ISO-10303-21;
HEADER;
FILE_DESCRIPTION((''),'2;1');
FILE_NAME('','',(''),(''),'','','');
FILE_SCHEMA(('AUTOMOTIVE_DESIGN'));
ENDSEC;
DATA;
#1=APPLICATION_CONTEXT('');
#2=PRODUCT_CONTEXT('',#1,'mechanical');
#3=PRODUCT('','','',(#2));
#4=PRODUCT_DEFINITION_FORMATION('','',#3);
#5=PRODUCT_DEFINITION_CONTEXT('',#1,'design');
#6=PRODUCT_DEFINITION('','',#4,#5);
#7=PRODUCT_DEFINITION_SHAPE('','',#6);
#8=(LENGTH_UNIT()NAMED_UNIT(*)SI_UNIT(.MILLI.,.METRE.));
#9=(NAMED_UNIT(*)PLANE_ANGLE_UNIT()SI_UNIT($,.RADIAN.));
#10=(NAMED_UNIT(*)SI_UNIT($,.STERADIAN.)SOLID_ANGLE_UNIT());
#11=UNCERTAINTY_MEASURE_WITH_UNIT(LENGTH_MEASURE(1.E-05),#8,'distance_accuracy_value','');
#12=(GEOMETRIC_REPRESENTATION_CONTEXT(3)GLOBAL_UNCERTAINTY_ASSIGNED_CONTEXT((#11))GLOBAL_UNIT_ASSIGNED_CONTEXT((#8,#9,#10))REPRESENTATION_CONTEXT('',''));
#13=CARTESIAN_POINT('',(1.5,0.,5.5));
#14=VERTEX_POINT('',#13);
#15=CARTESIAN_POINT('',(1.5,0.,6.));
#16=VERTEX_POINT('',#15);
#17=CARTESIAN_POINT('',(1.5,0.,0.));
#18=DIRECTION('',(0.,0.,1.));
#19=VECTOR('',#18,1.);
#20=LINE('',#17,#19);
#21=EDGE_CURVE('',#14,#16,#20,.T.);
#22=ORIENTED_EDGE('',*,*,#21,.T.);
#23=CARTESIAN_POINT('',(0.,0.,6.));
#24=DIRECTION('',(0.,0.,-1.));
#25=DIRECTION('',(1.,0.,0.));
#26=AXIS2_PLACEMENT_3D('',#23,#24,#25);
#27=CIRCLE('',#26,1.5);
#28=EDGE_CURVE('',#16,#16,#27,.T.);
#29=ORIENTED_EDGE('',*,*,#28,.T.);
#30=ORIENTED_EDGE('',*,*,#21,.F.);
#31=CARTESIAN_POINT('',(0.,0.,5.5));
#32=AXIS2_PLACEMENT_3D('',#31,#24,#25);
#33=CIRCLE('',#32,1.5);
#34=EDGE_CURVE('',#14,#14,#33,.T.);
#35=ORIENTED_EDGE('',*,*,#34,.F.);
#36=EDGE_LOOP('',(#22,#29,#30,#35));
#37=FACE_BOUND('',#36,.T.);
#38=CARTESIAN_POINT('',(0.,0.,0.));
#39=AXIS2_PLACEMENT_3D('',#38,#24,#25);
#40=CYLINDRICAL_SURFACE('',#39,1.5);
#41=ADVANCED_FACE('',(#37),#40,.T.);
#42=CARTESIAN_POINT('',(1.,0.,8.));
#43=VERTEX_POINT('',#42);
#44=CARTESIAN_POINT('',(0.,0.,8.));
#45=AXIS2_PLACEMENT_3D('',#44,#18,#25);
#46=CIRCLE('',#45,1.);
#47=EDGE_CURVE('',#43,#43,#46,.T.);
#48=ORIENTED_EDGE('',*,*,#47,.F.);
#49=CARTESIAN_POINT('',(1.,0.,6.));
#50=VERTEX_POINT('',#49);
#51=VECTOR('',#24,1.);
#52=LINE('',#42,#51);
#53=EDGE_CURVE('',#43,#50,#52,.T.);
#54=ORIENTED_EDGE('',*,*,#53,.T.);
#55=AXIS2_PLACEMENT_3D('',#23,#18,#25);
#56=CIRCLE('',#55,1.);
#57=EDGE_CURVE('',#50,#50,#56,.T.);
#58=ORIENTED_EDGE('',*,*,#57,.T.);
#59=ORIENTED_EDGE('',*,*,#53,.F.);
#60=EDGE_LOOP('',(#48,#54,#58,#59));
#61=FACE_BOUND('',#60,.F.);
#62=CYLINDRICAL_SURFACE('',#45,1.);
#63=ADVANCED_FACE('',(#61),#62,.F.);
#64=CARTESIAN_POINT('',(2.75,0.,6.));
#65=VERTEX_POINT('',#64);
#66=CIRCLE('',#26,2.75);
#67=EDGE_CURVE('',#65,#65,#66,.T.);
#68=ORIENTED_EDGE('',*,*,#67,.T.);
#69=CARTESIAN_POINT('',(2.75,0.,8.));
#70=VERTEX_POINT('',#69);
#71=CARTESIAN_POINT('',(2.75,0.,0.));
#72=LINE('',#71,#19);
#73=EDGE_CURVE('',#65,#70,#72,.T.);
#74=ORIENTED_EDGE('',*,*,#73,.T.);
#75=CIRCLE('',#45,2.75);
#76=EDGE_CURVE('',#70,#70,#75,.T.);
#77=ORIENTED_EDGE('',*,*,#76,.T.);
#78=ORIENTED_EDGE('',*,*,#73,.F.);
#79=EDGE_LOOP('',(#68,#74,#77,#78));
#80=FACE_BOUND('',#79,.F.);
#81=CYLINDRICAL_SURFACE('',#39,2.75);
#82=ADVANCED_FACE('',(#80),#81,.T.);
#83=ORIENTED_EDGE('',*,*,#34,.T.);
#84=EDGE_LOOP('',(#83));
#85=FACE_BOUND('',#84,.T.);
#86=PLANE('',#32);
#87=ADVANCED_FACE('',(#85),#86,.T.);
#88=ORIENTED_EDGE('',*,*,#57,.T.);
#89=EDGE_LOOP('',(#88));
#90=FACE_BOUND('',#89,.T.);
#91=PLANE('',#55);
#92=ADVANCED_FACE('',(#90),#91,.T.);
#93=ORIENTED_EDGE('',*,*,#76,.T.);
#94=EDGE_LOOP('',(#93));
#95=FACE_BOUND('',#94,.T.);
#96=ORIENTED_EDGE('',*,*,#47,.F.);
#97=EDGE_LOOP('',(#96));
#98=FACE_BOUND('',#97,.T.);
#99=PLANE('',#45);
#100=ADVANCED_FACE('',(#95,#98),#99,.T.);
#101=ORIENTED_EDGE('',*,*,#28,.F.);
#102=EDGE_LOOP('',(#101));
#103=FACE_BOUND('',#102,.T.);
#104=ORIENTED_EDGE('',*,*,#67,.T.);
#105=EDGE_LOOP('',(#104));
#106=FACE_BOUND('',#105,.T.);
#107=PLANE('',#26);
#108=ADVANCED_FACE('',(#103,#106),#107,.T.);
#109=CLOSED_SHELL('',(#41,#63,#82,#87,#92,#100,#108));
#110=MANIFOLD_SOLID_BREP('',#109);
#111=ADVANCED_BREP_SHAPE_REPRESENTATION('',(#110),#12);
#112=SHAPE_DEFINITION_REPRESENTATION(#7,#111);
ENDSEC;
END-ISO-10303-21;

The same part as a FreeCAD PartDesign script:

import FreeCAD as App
import Part
import Sketcher
from FreeCAD import Vector
Q = App.Units.Quantity

doc = App.newDocument("Part")
body = doc.addObject("PartDesign::Body", "Body")

# Sketch on XY plane
sketch1 = body.newObject("Sketcher::SketchObject", "Sketch")
sketch1.AttachmentSupport = (doc.getObject("XY_Plane"), [""])
sketch1.MapMode = "FlatFace"
sketch1.addGeometry(Part.Circle(Vector(0, 0, 0), Vector(0, 0, 1), 2.8), False)
sketch1.addConstraint(Sketcher.Constraint("Coincident", 0, 3, -1, 1))
sketch1.addConstraint(Sketcher.Constraint("Diameter", 0, Q("5.5 mm")))
pad1 = body.newObject("PartDesign::Pad", "Pad")
pad1.Profile = sketch1
pad1.Length = 8

# Sketch on XY plane
sketch2 = body.newObject("Sketcher::SketchObject", "Sketch001")
sketch2.AttachmentSupport = (doc.getObject("XY_Plane"), [""])
sketch2.MapMode = "FlatFace"
sketch2.addGeometry(Part.Circle(Vector(0, 0, 0), Vector(0, 0, 1), 2.8), False)
sketch2.addGeometry(Part.Circle(Vector(0, 0, 0), Vector(0, 0, 1), 1.5), False)
sketch2.addConstraint(Sketcher.Constraint("Coincident", 0, 3, -1, 1))
sketch2.addConstraint(Sketcher.Constraint("Coincident", 1, 3, -1, 1))
sketch2.addConstraint(Sketcher.Constraint("Diameter", 1, Q("3 mm")))
sketch2.addConstraint(Sketcher.Constraint("Diameter", 0, Q("5.5 mm")))
pocket1 = body.newObject("PartDesign::Pocket", "Pocket")
pocket1.Profile = sketch2
pocket1.Length = 6
pocket1.Reversed = True

# Sketch on XY plane
sketch3 = body.newObject("Sketcher::SketchObject", "Sketch002")
sketch3.AttachmentSupport = (doc.getObject("XY_Plane"), [""])
sketch3.MapMode = "FlatFace"
sketch3.AttachmentOffset = App.Placement(Vector(0, 0, 8), App.Rotation())
sketch3.addGeometry(Part.Circle(Vector(0, 0, 0), Vector(0, 0, 1), 1), False)
sketch3.addConstraint(Sketcher.Constraint("Coincident", 0, 3, -1, 1))
sketch3.addConstraint(Sketcher.Constraint("Diameter", 0, Q("2 mm")))
pocket2 = body.newObject("PartDesign::Pocket", "Pocket001")
pocket2.Profile = sketch3
pocket2.Length = 2

# Sketch on XY plane
sketch4 = body.newObject("Sketcher::SketchObject", "Sketch003")
sketch4.AttachmentSupport = (doc.getObject("XY_Plane"), [""])
sketch4.MapMode = "FlatFace"
sketch4.addGeometry(Part.Circle(Vector(0, 0, 0), Vector(0, 0, 1), 1.5), False)
sketch4.addConstraint(Sketcher.Constraint("Coincident", 0, 3, -1, 1))
sketch4.addConstraint(Sketcher.Constraint("Diameter", 0, Q("3 mm")))
pocket3 = body.newObject("PartDesign::Pocket", "Pocket002")
pocket3.Profile = sketch4
pocket3.Length = 5.5
pocket3.Reversed = True

doc.recompute()
